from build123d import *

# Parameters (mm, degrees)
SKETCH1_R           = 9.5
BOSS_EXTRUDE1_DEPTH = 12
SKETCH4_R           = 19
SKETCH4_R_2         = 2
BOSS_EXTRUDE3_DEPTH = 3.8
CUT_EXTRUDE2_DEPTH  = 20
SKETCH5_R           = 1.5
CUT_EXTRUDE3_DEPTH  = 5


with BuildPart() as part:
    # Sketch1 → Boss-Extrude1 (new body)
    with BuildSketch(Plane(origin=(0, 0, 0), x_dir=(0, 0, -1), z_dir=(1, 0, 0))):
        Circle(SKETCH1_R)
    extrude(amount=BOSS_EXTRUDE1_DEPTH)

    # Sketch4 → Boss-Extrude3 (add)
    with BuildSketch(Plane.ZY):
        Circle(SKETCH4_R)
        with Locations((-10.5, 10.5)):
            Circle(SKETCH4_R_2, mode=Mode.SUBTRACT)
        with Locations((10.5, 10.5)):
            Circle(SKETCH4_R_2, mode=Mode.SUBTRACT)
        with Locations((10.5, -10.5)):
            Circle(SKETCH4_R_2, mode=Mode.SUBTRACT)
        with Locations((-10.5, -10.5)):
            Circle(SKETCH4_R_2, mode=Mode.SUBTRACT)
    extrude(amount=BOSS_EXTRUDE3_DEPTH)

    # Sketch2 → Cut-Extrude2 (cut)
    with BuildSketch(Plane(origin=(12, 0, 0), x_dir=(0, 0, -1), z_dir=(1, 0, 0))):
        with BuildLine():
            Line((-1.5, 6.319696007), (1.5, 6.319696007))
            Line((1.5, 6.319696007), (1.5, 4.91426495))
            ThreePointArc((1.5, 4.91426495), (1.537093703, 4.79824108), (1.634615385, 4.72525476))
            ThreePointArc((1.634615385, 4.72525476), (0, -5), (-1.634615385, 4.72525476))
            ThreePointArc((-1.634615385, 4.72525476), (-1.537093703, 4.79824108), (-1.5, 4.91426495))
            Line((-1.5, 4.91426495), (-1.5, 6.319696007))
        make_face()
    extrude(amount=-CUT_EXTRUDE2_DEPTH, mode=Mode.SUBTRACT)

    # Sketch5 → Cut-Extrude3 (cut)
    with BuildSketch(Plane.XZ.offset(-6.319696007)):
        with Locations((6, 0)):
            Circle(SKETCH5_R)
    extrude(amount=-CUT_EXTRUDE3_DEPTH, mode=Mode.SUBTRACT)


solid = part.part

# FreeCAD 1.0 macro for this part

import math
import FreeCAD as App
import Part
import Sketcher

doc = App.newDocument("Part")
params = doc.addObject("Spreadsheet::Sheet", "Params")
for row, (alias, value) in enumerate([
    ("sketch1_diameter", "19 mm"),
    ("pad1_length", "12 mm"),
    ("sketch2_diameter", "38 mm"),
    ("sketch2_diameter2", "4 mm"),
    ("pad2_length", "3.8 mm"),
    ("sketch3_radius", "5 mm"),
    ("sketch3_radius2", "0.2 mm"),
    ("sketch3_height", "3 mm"),
    ("pocket1_length", "20 mm"),
    ("sketch4_diameter", "3 mm"),
    ("pocket2_length", "5 mm"),
], start=1):
    params.set(f"A{row}", alias)
    params.set(f"B{row}", "=" + value)
    params.setAlias(f"B{row}", alias)

body = doc.addObject("PartDesign::Body", "Body")

# Sketch on YZ plane
sketch1 = body.newObject("Sketcher::SketchObject", "Sketch")
sketch1.AttachmentSupport = (doc.getObject("YZ_Plane"), [""])
sketch1.MapMode = "FlatFace"
sketch1.addGeometry(Part.Circle(App.Vector(0, 0, 0), App.Vector(0, 0, 1), 10), False)
sketch1.addConstraint(Sketcher.Constraint("Coincident", 0, 3, -1, 1))
sketch1.addConstraint(Sketcher.Constraint("Diameter", 0, 19.0))
sketch1.setExpression("Constraints[1]", "Params.sketch1_diameter")
pad1 = body.newObject("PartDesign::Pad", "Pad")
pad1.Profile = sketch1
pad1.setExpression("Length", "Params.pad1_length")

# Sketch on YZ plane
sketch2 = body.newObject("Sketcher::SketchObject", "Sketch001")
sketch2.AttachmentSupport = (doc.getObject("YZ_Plane"), [""])
sketch2.MapMode = "FlatFace"
sketch2.addGeometry(Part.Circle(App.Vector(0, 0, 0), App.Vector(0, 0, 1), 19), False)
sketch2.addGeometry(Part.Circle(App.Vector(-10.5, -10.5, 0), App.Vector(0, 0, 1), 2), False)
sketch2.addGeometry(Part.Circle(App.Vector(-10.5, 10.5, 0), App.Vector(0, 0, 1), 2), False)
sketch2.addGeometry(Part.Circle(App.Vector(10.5, -10.5, 0), App.Vector(0, 0, 1), 2), False)
sketch2.addGeometry(Part.Circle(App.Vector(10.5, 10.5, 0), App.Vector(0, 0, 1), 2), False)
sketch2.addConstraint(Sketcher.Constraint("Coincident", 0, 3, -1, 1))
sketch2.addConstraint(Sketcher.Constraint("Equal", 1, 2))
sketch2.addConstraint(Sketcher.Constraint("Equal", 2, 3))
sketch2.addConstraint(Sketcher.Constraint("Equal", 3, 4))
sketch2.addConstraint(Sketcher.Constraint("Symmetric", 2, 3, 3, 3, -1, 1))
sketch2.addConstraint(Sketcher.Constraint("Symmetric", 1, 3, 4, 3, -1, 1))
sketch2.addConstraint(Sketcher.Constraint("Symmetric", 1, 3, 3, 3, -2))
sketch2.addConstraint(Sketcher.Constraint("Diameter", 0, 38.0))
sketch2.addConstraint(Sketcher.Constraint("Diameter", 1, 4.0))
sketch2.addConstraint(Sketcher.Constraint("DistanceY", 1, 3, 2, 3, 21.0))
sketch2.addConstraint(Sketcher.Constraint("DistanceX", 1, 3, 3, 3, 21.0))
sketch2.setExpression("Constraints[7]", "Params.sketch2_diameter")
sketch2.setExpression("Constraints[8]", "Params.sketch2_diameter2")
pad2 = body.newObject("PartDesign::Pad", "Pad001")
pad2.Profile = sketch2
pad2.setExpression("Length", "Params.pad2_length")
pad2.Reversed = True

# Sketch on YZ plane
sketch3 = body.newObject("Sketcher::SketchObject", "Sketch002")
sketch3.AttachmentSupport = (doc.getObject("YZ_Plane"), [""])
sketch3.MapMode = "FlatFace"
sketch3.AttachmentOffset = App.Placement(App.Vector(0, 0, 12), App.Rotation())
sketch3.addGeometry(Part.LineSegment(App.Vector(6.32, -1.5, 0), App.Vector(6.32, 1.5, 0)), False)
sketch3.addGeometry(Part.LineSegment(App.Vector(6.32, 1.5, 0), App.Vector(4.91, 1.5, 0)), False)
sketch3.addGeometry(Part.ArcOfCircle(Part.Circle(App.Vector(4.91, 1.7, 0), App.Vector(0, 0, 1), 0.2), math.radians(-161), math.radians(-90)), False)
sketch3.addGeometry(Part.ArcOfCircle(Part.Circle(App.Vector(0, 0, 0), App.Vector(0, 0, 1), 5), math.radians(19), math.radians(341)), False)
sketch3.addGeometry(Part.ArcOfCircle(Part.Circle(App.Vector(4.91, -1.7, 0), App.Vector(0, 0, 1), 0.2), math.radians(90), math.radians(161)), False)
sketch3.addGeometry(Part.LineSegment(App.Vector(4.91, -1.5, 0), App.Vector(6.32, -1.5, 0)), False)
sketch3.addConstraint(Sketcher.Constraint("Coincident", 0, 2, 1, 1))
sketch3.addConstraint(Sketcher.Constraint("Tangent", 1, 2, 2, 2))
sketch3.addConstraint(Sketcher.Constraint("Tangent", 2, 1, 3, 1))
sketch3.addConstraint(Sketcher.Constraint("Tangent", 3, 2, 4, 2))
sketch3.addConstraint(Sketcher.Constraint("Tangent", 4, 1, 5, 1))
sketch3.addConstraint(Sketcher.Constraint("Coincident", 5, 2, 0, 1))
sketch3.addConstraint(Sketcher.Constraint("Vertical", 0))
sketch3.addConstraint(Sketcher.Constraint("Horizontal", 1))
sketch3.addConstraint(Sketcher.Constraint("Horizontal", 5))
sketch3.addConstraint(Sketcher.Constraint("Coincident", 3, 3, -1, 1))
sketch3.addConstraint(Sketcher.Constraint("Equal", 2, 4))
sketch3.addConstraint(Sketcher.Constraint("Vertical", 2, 3, 4, 3))
sketch3.addConstraint(Sketcher.Constraint("Radius", 3, 5.0))
sketch3.addConstraint(Sketcher.Constraint("Radius", 2, 0.2))
sketch3.addConstraint(Sketcher.Constraint("DistanceY", 0, 1, 0, 2, 3.0))
sketch3.addConstraint(Sketcher.Constraint("DistanceX", 1, 2, 1, 1, 1.405431))
sketch3.setExpression("Constraints[12]", "Params.sketch3_radius")
sketch3.setExpression("Constraints[13]", "Params.sketch3_radius2")
sketch3.setExpression("Constraints[14]", "Params.sketch3_height")
pocket1 = body.newObject("PartDesign::Pocket", "Pocket")
pocket1.Profile = sketch3
pocket1.setExpression("Length", "Params.pocket1_length")

# Sketch on XZ plane
sketch4 = body.newObject("Sketcher::SketchObject", "Sketch003")
sketch4.AttachmentSupport = (doc.getObject("XZ_Plane"), [""])
sketch4.MapMode = "FlatFace"
sketch4.AttachmentOffset = App.Placement(App.Vector(0, 0, -6.319696), App.Rotation())
sketch4.addGeometry(Part.Circle(App.Vector(6, 0, 0), App.Vector(0, 0, 1), 1.5), False)
sketch4.addConstraint(Sketcher.Constraint("PointOnObject", 0, 3, -1))
sketch4.addConstraint(Sketcher.Constraint("Diameter", 0, 3.0))
sketch4.addConstraint(Sketcher.Constraint("DistanceX", -1, 1, 0, 3, 6.0))
sketch4.setExpression("Constraints[1]", "Params.sketch4_diameter")
pocket2 = body.newObject("PartDesign::Pocket", "Pocket001")
pocket2.Profile = sketch4
pocket2.setExpression("Length", "Params.pocket2_length")

doc.recompute()
